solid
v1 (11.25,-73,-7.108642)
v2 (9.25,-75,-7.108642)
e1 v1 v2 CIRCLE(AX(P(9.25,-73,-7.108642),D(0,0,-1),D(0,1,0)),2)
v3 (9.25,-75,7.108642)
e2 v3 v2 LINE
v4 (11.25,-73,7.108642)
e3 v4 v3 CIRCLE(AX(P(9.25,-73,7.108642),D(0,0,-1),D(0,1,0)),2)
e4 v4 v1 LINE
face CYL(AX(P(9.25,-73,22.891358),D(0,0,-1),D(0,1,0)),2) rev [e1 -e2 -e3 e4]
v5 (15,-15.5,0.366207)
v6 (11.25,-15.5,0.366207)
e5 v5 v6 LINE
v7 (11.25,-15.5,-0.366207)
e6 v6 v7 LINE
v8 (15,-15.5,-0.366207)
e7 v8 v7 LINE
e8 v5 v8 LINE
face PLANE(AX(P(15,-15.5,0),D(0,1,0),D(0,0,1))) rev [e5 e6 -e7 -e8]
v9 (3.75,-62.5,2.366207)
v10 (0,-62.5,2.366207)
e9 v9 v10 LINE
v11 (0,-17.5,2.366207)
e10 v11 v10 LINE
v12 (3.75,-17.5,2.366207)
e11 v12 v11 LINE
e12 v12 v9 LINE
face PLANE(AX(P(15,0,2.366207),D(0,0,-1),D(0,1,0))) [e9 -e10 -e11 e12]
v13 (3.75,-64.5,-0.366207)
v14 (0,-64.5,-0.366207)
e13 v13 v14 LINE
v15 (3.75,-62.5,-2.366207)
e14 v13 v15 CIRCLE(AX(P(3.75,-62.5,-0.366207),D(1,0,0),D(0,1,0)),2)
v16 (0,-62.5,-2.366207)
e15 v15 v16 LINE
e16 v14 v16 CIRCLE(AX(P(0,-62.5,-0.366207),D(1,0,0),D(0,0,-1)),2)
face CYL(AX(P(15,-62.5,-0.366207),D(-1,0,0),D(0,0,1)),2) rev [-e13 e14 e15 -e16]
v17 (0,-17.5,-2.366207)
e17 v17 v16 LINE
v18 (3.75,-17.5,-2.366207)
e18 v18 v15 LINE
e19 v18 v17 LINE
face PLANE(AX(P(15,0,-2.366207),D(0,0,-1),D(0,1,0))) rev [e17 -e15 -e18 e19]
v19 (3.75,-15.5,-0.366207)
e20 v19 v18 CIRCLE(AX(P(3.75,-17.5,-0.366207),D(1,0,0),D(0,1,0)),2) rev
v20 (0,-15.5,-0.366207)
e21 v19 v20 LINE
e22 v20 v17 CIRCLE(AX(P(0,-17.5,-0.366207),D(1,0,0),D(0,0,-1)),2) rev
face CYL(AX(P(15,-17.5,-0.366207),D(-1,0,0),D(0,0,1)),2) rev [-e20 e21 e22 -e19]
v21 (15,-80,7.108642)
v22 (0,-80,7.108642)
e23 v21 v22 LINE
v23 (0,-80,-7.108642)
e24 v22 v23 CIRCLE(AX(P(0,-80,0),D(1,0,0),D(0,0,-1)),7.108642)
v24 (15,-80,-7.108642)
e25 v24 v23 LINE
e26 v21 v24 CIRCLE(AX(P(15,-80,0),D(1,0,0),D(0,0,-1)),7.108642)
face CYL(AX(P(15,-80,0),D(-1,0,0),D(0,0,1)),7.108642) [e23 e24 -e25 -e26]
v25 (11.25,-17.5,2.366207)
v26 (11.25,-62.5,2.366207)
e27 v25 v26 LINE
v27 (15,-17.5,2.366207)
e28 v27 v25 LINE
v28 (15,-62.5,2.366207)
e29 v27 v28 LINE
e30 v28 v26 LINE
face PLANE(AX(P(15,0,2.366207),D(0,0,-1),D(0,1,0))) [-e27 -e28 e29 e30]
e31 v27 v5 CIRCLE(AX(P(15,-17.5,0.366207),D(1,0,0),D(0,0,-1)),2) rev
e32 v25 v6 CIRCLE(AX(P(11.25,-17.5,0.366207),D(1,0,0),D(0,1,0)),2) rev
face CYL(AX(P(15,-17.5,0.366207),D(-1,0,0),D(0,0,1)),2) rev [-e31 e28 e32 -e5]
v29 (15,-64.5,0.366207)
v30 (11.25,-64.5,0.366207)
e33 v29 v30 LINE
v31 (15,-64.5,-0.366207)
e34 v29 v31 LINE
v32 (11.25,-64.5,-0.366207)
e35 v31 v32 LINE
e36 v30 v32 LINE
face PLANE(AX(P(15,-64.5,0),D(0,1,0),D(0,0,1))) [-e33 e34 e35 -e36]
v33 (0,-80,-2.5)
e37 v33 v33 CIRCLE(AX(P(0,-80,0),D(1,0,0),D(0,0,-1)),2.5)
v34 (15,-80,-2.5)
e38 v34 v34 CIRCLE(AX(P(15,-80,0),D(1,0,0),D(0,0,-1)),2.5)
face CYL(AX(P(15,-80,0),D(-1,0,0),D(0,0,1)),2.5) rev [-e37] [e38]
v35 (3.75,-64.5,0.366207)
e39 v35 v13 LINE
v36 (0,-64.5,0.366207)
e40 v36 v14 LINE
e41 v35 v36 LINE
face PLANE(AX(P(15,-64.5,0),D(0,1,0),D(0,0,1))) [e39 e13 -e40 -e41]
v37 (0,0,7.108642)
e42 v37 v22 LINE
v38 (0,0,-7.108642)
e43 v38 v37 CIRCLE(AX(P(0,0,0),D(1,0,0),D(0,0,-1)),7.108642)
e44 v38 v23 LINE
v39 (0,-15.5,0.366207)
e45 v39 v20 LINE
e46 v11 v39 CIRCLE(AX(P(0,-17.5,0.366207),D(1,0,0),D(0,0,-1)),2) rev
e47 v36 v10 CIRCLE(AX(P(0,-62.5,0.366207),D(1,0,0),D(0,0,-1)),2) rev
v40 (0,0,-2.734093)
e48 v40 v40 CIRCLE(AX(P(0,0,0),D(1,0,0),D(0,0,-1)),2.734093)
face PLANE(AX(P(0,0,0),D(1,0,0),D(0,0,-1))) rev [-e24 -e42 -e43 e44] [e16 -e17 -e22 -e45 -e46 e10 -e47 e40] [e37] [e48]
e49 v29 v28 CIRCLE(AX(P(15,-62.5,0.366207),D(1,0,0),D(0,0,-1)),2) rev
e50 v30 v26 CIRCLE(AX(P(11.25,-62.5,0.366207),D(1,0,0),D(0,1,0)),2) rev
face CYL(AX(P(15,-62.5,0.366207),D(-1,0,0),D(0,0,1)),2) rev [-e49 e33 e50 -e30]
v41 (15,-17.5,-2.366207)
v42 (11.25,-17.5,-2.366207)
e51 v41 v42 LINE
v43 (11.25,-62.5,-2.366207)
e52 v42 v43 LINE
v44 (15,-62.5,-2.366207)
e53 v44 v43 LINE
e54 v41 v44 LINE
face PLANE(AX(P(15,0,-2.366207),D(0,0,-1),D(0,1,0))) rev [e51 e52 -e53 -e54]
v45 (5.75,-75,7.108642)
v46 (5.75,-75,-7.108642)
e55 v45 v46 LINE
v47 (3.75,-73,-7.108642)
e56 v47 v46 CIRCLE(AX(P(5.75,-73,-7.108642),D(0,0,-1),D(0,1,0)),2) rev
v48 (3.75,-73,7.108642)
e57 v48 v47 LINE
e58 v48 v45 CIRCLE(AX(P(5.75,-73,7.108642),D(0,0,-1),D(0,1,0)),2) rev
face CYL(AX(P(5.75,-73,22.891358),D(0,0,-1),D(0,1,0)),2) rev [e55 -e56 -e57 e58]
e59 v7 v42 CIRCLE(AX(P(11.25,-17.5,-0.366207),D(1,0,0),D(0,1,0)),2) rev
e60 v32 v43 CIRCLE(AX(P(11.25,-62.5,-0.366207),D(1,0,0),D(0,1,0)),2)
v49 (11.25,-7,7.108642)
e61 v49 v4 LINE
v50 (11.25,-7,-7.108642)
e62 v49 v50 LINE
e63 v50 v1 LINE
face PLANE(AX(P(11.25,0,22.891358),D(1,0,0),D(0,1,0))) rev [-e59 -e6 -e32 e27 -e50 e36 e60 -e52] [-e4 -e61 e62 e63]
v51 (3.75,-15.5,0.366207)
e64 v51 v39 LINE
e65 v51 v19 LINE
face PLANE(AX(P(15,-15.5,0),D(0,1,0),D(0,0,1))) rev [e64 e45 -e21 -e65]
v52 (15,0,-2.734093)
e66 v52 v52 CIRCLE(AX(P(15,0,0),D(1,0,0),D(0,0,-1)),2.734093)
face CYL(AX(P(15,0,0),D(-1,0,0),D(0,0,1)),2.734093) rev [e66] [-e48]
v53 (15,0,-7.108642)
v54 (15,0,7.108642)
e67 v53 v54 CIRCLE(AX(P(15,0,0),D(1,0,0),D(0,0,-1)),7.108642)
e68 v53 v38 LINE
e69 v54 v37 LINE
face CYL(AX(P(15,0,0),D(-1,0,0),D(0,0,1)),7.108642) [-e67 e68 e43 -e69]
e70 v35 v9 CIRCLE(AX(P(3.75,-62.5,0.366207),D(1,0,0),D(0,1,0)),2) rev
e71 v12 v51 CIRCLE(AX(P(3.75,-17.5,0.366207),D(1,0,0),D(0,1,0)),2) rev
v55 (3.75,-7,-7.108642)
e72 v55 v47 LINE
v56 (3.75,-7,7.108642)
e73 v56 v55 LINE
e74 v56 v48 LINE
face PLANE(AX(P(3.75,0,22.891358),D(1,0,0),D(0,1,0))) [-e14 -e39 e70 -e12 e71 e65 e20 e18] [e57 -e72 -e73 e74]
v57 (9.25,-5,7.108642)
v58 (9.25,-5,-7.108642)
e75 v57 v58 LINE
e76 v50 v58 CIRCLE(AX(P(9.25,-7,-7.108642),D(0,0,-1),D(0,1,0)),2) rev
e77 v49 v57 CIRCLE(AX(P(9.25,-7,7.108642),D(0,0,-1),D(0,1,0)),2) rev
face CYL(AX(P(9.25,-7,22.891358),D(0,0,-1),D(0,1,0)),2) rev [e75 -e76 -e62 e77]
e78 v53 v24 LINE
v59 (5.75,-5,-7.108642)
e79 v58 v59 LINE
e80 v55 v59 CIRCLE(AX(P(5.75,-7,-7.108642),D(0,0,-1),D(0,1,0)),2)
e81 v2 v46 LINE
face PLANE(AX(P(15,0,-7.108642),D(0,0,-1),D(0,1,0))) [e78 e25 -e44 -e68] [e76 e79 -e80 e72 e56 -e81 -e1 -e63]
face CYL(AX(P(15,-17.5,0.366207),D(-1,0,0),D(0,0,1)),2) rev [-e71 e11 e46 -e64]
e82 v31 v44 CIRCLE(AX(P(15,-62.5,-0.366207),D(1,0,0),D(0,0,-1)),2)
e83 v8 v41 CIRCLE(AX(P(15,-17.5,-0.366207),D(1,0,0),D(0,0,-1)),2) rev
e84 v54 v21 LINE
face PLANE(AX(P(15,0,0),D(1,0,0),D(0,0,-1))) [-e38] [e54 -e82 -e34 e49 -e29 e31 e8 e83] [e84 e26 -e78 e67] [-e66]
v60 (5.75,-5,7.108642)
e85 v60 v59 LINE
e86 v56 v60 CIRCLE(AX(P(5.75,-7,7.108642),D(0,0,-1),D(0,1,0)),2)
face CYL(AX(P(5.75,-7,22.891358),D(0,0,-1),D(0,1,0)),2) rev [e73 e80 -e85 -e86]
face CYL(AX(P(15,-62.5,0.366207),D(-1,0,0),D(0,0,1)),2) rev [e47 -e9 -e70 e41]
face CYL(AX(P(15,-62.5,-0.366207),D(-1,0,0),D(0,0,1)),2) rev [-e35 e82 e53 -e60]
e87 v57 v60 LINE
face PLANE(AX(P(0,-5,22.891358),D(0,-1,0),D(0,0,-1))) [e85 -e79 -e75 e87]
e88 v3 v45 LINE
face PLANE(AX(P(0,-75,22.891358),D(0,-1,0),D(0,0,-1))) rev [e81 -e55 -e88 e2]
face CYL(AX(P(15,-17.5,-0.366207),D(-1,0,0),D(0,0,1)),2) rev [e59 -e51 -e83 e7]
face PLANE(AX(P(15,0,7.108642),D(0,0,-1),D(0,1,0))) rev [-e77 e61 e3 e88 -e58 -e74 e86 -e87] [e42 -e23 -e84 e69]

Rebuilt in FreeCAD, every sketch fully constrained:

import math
import FreeCAD as App
import Part
import Sketcher

V = App.Vector
Q = App.Units.Quantity

doc = App.newDocument("Part")
body = doc.addObject("PartDesign::Body", "Body")

sketch1 = body.newObject("Sketcher::SketchObject", "Sketch")
sketch1.AttachmentSupport = (doc.getObject("YZ_Plane"), [""])
sketch1.MapMode = "FlatFace"
sketch1.addGeometry([
    Part.LineSegment(V(-80, -7.1, 0), V(0, -7.1, 0)),
    Part.ArcOfCircle(Part.Circle(V(0, 0, 0), V(0, 0, 1), 7.1), math.radians(-90), math.radians(90)),
    Part.LineSegment(V(0, 7.1, 0), V(-80, 7.1, 0)),
    Part.ArcOfCircle(Part.Circle(V(-80, 0, 0), V(0, 0, 1), 7.1), math.radians(90), math.radians(270)),
    Part.ArcOfCircle(Part.Circle(V(-17.5, 0.4, 0), V(0, 0, 1), 2), math.radians(0), math.radians(90)),
    Part.LineSegment(V(-15.5, 0.4, 0), V(-15.5, -0.4, 0)),
    Part.ArcOfCircle(Part.Circle(V(-17.5, -0.4, 0), V(0, 0, 1), 2), math.radians(-90), math.radians(0)),
    Part.LineSegment(V(-17.5, -2.4, 0), V(-62.5, -2.4, 0)),
    Part.ArcOfCircle(Part.Circle(V(-62.5, -0.4, 0), V(0, 0, 1), 2), math.radians(180), math.radians(270)),
    Part.LineSegment(V(-64.5, -0.4, 0), V(-64.5, 0.4, 0)),
    Part.ArcOfCircle(Part.Circle(V(-62.5, 0.4, 0), V(0, 0, 1), 2), math.radians(90), math.radians(180)),
    Part.LineSegment(V(-62.5, 2.4, 0), V(-17.5, 2.4, 0)),
    Part.Circle(V(-80, 0, 0), V(0, 0, 1), 2.5),
    Part.Circle(V(0, 0, 0), V(0, 0, 1), 2.7),
], False)
sketch1.addConstraint([
    Sketcher.Constraint("Tangent", 0, 2, 1, 1),
    Sketcher.Constraint("Tangent", 1, 2, 2, 1),
    Sketcher.Constraint("Tangent", 2, 2, 3, 1),
    Sketcher.Constraint("Tangent", 3, 2, 0, 1),
    Sketcher.Constraint("Tangent", 4, 1, 5, 1),
    Sketcher.Constraint("Tangent", 5, 2, 6, 2),
    Sketcher.Constraint("Tangent", 6, 1, 7, 1),
    Sketcher.Constraint("Tangent", 7, 2, 8, 2),
    Sketcher.Constraint("Tangent", 8, 1, 9, 1),
    Sketcher.Constraint("Tangent", 9, 2, 10, 2),
    Sketcher.Constraint("Tangent", 10, 1, 11, 1),
    Sketcher.Constraint("Tangent", 11, 2, 4, 2),
    Sketcher.Constraint("Horizontal", 0),
    Sketcher.Constraint("Horizontal", 2),
    Sketcher.Constraint("Vertical", 5),
    Sketcher.Constraint("Horizontal", 7),
    Sketcher.Constraint("Vertical", 9),
    Sketcher.Constraint("Horizontal", 11),
    Sketcher.Constraint("Coincident", 1, 3, -1, 1),
    Sketcher.Constraint("Coincident", 13, 3, -1, 1),
    Sketcher.Constraint("Coincident", 12, 3, 3, 3),
    Sketcher.Constraint("Equal", 4, 6),
    Sketcher.Constraint("Equal", 6, 8),
    Sketcher.Constraint("Equal", 8, 10),
    Sketcher.Constraint("Diameter", 12, Q("5 mm")),
    Sketcher.Constraint("Radius", 4, Q("2 mm")),
    Sketcher.Constraint("DistanceX", 0, 1, 0, 2, Q("80 mm")),
    Sketcher.Constraint("DistanceX", 7, 2, 7, 1, Q("45 mm")),
    Sketcher.Constraint("DistanceX", 4, 3, -1, 1, Q("17.5 mm")),
    Sketcher.Constraint("Radius", 1, Q("7.108642 mm")),
    Sketcher.Constraint("Diameter", 13, Q("5.468186 mm")),
    Sketcher.Constraint("DistanceY", 5, 2, 5, 1, Q("0.732415 mm")),
    Sketcher.Constraint("DistanceY", 0, 2, 4, 3, Q("7.474849 mm")),
])
pad1 = body.newObject("PartDesign::Pad", "Pad")
pad1.Profile = sketch1
pad1.Length = 15

sketch2 = body.newObject("Sketcher::SketchObject", "Sketch001")
sketch2.AttachmentSupport = (doc.getObject("XY_Plane"), [""])
sketch2.MapMode = "FlatFace"
sketch2.AttachmentOffset = App.Placement(V(0, 0, -7.108642), App.Rotation())
sketch2.addGeometry([
    Part.LineSegment(V(5.8, -5, 0), V(9.2, -5, 0)),
    Part.ArcOfCircle(Part.Circle(V(9.2, -7, 0), V(0, 0, 1), 2), math.radians(0), math.radians(90)),
    Part.LineSegment(V(11.2, -7, 0), V(11.2, -73, 0)),
    Part.ArcOfCircle(Part.Circle(V(9.2, -73, 0), V(0, 0, 1), 2), math.radians(-90), math.radians(0)),
    Part.LineSegment(V(9.2, -75, 0), V(5.8, -75, 0)),
    Part.ArcOfCircle(Part.Circle(V(5.8, -73, 0), V(0, 0, 1), 2), math.radians(-180), math.radians(-90)),
    Part.LineSegment(V(3.8, -73, 0), V(3.8, -7, 0)),
    Part.ArcOfCircle(Part.Circle(V(5.8, -7, 0), V(0, 0, 1), 2), math.radians(90), math.radians(180)),
], False)
sketch2.addConstraint([
    Sketcher.Constraint("Tangent", 0, 2, 1, 2),
    Sketcher.Constraint("Tangent", 1, 1, 2, 1),
    Sketcher.Constraint("Tangent", 2, 2, 3, 2),
    Sketcher.Constraint("Tangent", 3, 1, 4, 1),
    Sketcher.Constraint("Tangent", 4, 2, 5, 2),
    Sketcher.Constraint("Tangent", 5, 1, 6, 1),
    Sketcher.Constraint("Tangent", 6, 2, 7, 2),
    Sketcher.Constraint("Tangent", 7, 1, 0, 1),
    Sketcher.Constraint("Horizontal", 0),
    Sketcher.Constraint("Vertical", 2),
    Sketcher.Constraint("Horizontal", 4),
    Sketcher.Constraint("Vertical", 6),
    Sketcher.Constraint("Equal", 1, 3),
    Sketcher.Constraint("Equal", 3, 5),
    Sketcher.Constraint("Equal", 5, 7),
    Sketcher.Constraint("Radius", 1, Q("2 mm")),
    Sketcher.Constraint("DistanceY", 2, 2, 2, 1, Q("66 mm")),
    Sketcher.Constraint("DistanceX", 0, 1, 0, 2, Q("3.5 mm")),
    Sketcher.Constraint("DistanceY", 1, 3, -1, 1, Q("7 mm")),
    Sketcher.Constraint("DistanceX", -1, 1, 1, 3, Q("9.25 mm")),
])
pocket1 = body.newObject("PartDesign::Pocket", "Pocket")
pocket1.Profile = sketch2
pocket1.Length = 30
pocket1.Reversed = True

doc.recompute()
